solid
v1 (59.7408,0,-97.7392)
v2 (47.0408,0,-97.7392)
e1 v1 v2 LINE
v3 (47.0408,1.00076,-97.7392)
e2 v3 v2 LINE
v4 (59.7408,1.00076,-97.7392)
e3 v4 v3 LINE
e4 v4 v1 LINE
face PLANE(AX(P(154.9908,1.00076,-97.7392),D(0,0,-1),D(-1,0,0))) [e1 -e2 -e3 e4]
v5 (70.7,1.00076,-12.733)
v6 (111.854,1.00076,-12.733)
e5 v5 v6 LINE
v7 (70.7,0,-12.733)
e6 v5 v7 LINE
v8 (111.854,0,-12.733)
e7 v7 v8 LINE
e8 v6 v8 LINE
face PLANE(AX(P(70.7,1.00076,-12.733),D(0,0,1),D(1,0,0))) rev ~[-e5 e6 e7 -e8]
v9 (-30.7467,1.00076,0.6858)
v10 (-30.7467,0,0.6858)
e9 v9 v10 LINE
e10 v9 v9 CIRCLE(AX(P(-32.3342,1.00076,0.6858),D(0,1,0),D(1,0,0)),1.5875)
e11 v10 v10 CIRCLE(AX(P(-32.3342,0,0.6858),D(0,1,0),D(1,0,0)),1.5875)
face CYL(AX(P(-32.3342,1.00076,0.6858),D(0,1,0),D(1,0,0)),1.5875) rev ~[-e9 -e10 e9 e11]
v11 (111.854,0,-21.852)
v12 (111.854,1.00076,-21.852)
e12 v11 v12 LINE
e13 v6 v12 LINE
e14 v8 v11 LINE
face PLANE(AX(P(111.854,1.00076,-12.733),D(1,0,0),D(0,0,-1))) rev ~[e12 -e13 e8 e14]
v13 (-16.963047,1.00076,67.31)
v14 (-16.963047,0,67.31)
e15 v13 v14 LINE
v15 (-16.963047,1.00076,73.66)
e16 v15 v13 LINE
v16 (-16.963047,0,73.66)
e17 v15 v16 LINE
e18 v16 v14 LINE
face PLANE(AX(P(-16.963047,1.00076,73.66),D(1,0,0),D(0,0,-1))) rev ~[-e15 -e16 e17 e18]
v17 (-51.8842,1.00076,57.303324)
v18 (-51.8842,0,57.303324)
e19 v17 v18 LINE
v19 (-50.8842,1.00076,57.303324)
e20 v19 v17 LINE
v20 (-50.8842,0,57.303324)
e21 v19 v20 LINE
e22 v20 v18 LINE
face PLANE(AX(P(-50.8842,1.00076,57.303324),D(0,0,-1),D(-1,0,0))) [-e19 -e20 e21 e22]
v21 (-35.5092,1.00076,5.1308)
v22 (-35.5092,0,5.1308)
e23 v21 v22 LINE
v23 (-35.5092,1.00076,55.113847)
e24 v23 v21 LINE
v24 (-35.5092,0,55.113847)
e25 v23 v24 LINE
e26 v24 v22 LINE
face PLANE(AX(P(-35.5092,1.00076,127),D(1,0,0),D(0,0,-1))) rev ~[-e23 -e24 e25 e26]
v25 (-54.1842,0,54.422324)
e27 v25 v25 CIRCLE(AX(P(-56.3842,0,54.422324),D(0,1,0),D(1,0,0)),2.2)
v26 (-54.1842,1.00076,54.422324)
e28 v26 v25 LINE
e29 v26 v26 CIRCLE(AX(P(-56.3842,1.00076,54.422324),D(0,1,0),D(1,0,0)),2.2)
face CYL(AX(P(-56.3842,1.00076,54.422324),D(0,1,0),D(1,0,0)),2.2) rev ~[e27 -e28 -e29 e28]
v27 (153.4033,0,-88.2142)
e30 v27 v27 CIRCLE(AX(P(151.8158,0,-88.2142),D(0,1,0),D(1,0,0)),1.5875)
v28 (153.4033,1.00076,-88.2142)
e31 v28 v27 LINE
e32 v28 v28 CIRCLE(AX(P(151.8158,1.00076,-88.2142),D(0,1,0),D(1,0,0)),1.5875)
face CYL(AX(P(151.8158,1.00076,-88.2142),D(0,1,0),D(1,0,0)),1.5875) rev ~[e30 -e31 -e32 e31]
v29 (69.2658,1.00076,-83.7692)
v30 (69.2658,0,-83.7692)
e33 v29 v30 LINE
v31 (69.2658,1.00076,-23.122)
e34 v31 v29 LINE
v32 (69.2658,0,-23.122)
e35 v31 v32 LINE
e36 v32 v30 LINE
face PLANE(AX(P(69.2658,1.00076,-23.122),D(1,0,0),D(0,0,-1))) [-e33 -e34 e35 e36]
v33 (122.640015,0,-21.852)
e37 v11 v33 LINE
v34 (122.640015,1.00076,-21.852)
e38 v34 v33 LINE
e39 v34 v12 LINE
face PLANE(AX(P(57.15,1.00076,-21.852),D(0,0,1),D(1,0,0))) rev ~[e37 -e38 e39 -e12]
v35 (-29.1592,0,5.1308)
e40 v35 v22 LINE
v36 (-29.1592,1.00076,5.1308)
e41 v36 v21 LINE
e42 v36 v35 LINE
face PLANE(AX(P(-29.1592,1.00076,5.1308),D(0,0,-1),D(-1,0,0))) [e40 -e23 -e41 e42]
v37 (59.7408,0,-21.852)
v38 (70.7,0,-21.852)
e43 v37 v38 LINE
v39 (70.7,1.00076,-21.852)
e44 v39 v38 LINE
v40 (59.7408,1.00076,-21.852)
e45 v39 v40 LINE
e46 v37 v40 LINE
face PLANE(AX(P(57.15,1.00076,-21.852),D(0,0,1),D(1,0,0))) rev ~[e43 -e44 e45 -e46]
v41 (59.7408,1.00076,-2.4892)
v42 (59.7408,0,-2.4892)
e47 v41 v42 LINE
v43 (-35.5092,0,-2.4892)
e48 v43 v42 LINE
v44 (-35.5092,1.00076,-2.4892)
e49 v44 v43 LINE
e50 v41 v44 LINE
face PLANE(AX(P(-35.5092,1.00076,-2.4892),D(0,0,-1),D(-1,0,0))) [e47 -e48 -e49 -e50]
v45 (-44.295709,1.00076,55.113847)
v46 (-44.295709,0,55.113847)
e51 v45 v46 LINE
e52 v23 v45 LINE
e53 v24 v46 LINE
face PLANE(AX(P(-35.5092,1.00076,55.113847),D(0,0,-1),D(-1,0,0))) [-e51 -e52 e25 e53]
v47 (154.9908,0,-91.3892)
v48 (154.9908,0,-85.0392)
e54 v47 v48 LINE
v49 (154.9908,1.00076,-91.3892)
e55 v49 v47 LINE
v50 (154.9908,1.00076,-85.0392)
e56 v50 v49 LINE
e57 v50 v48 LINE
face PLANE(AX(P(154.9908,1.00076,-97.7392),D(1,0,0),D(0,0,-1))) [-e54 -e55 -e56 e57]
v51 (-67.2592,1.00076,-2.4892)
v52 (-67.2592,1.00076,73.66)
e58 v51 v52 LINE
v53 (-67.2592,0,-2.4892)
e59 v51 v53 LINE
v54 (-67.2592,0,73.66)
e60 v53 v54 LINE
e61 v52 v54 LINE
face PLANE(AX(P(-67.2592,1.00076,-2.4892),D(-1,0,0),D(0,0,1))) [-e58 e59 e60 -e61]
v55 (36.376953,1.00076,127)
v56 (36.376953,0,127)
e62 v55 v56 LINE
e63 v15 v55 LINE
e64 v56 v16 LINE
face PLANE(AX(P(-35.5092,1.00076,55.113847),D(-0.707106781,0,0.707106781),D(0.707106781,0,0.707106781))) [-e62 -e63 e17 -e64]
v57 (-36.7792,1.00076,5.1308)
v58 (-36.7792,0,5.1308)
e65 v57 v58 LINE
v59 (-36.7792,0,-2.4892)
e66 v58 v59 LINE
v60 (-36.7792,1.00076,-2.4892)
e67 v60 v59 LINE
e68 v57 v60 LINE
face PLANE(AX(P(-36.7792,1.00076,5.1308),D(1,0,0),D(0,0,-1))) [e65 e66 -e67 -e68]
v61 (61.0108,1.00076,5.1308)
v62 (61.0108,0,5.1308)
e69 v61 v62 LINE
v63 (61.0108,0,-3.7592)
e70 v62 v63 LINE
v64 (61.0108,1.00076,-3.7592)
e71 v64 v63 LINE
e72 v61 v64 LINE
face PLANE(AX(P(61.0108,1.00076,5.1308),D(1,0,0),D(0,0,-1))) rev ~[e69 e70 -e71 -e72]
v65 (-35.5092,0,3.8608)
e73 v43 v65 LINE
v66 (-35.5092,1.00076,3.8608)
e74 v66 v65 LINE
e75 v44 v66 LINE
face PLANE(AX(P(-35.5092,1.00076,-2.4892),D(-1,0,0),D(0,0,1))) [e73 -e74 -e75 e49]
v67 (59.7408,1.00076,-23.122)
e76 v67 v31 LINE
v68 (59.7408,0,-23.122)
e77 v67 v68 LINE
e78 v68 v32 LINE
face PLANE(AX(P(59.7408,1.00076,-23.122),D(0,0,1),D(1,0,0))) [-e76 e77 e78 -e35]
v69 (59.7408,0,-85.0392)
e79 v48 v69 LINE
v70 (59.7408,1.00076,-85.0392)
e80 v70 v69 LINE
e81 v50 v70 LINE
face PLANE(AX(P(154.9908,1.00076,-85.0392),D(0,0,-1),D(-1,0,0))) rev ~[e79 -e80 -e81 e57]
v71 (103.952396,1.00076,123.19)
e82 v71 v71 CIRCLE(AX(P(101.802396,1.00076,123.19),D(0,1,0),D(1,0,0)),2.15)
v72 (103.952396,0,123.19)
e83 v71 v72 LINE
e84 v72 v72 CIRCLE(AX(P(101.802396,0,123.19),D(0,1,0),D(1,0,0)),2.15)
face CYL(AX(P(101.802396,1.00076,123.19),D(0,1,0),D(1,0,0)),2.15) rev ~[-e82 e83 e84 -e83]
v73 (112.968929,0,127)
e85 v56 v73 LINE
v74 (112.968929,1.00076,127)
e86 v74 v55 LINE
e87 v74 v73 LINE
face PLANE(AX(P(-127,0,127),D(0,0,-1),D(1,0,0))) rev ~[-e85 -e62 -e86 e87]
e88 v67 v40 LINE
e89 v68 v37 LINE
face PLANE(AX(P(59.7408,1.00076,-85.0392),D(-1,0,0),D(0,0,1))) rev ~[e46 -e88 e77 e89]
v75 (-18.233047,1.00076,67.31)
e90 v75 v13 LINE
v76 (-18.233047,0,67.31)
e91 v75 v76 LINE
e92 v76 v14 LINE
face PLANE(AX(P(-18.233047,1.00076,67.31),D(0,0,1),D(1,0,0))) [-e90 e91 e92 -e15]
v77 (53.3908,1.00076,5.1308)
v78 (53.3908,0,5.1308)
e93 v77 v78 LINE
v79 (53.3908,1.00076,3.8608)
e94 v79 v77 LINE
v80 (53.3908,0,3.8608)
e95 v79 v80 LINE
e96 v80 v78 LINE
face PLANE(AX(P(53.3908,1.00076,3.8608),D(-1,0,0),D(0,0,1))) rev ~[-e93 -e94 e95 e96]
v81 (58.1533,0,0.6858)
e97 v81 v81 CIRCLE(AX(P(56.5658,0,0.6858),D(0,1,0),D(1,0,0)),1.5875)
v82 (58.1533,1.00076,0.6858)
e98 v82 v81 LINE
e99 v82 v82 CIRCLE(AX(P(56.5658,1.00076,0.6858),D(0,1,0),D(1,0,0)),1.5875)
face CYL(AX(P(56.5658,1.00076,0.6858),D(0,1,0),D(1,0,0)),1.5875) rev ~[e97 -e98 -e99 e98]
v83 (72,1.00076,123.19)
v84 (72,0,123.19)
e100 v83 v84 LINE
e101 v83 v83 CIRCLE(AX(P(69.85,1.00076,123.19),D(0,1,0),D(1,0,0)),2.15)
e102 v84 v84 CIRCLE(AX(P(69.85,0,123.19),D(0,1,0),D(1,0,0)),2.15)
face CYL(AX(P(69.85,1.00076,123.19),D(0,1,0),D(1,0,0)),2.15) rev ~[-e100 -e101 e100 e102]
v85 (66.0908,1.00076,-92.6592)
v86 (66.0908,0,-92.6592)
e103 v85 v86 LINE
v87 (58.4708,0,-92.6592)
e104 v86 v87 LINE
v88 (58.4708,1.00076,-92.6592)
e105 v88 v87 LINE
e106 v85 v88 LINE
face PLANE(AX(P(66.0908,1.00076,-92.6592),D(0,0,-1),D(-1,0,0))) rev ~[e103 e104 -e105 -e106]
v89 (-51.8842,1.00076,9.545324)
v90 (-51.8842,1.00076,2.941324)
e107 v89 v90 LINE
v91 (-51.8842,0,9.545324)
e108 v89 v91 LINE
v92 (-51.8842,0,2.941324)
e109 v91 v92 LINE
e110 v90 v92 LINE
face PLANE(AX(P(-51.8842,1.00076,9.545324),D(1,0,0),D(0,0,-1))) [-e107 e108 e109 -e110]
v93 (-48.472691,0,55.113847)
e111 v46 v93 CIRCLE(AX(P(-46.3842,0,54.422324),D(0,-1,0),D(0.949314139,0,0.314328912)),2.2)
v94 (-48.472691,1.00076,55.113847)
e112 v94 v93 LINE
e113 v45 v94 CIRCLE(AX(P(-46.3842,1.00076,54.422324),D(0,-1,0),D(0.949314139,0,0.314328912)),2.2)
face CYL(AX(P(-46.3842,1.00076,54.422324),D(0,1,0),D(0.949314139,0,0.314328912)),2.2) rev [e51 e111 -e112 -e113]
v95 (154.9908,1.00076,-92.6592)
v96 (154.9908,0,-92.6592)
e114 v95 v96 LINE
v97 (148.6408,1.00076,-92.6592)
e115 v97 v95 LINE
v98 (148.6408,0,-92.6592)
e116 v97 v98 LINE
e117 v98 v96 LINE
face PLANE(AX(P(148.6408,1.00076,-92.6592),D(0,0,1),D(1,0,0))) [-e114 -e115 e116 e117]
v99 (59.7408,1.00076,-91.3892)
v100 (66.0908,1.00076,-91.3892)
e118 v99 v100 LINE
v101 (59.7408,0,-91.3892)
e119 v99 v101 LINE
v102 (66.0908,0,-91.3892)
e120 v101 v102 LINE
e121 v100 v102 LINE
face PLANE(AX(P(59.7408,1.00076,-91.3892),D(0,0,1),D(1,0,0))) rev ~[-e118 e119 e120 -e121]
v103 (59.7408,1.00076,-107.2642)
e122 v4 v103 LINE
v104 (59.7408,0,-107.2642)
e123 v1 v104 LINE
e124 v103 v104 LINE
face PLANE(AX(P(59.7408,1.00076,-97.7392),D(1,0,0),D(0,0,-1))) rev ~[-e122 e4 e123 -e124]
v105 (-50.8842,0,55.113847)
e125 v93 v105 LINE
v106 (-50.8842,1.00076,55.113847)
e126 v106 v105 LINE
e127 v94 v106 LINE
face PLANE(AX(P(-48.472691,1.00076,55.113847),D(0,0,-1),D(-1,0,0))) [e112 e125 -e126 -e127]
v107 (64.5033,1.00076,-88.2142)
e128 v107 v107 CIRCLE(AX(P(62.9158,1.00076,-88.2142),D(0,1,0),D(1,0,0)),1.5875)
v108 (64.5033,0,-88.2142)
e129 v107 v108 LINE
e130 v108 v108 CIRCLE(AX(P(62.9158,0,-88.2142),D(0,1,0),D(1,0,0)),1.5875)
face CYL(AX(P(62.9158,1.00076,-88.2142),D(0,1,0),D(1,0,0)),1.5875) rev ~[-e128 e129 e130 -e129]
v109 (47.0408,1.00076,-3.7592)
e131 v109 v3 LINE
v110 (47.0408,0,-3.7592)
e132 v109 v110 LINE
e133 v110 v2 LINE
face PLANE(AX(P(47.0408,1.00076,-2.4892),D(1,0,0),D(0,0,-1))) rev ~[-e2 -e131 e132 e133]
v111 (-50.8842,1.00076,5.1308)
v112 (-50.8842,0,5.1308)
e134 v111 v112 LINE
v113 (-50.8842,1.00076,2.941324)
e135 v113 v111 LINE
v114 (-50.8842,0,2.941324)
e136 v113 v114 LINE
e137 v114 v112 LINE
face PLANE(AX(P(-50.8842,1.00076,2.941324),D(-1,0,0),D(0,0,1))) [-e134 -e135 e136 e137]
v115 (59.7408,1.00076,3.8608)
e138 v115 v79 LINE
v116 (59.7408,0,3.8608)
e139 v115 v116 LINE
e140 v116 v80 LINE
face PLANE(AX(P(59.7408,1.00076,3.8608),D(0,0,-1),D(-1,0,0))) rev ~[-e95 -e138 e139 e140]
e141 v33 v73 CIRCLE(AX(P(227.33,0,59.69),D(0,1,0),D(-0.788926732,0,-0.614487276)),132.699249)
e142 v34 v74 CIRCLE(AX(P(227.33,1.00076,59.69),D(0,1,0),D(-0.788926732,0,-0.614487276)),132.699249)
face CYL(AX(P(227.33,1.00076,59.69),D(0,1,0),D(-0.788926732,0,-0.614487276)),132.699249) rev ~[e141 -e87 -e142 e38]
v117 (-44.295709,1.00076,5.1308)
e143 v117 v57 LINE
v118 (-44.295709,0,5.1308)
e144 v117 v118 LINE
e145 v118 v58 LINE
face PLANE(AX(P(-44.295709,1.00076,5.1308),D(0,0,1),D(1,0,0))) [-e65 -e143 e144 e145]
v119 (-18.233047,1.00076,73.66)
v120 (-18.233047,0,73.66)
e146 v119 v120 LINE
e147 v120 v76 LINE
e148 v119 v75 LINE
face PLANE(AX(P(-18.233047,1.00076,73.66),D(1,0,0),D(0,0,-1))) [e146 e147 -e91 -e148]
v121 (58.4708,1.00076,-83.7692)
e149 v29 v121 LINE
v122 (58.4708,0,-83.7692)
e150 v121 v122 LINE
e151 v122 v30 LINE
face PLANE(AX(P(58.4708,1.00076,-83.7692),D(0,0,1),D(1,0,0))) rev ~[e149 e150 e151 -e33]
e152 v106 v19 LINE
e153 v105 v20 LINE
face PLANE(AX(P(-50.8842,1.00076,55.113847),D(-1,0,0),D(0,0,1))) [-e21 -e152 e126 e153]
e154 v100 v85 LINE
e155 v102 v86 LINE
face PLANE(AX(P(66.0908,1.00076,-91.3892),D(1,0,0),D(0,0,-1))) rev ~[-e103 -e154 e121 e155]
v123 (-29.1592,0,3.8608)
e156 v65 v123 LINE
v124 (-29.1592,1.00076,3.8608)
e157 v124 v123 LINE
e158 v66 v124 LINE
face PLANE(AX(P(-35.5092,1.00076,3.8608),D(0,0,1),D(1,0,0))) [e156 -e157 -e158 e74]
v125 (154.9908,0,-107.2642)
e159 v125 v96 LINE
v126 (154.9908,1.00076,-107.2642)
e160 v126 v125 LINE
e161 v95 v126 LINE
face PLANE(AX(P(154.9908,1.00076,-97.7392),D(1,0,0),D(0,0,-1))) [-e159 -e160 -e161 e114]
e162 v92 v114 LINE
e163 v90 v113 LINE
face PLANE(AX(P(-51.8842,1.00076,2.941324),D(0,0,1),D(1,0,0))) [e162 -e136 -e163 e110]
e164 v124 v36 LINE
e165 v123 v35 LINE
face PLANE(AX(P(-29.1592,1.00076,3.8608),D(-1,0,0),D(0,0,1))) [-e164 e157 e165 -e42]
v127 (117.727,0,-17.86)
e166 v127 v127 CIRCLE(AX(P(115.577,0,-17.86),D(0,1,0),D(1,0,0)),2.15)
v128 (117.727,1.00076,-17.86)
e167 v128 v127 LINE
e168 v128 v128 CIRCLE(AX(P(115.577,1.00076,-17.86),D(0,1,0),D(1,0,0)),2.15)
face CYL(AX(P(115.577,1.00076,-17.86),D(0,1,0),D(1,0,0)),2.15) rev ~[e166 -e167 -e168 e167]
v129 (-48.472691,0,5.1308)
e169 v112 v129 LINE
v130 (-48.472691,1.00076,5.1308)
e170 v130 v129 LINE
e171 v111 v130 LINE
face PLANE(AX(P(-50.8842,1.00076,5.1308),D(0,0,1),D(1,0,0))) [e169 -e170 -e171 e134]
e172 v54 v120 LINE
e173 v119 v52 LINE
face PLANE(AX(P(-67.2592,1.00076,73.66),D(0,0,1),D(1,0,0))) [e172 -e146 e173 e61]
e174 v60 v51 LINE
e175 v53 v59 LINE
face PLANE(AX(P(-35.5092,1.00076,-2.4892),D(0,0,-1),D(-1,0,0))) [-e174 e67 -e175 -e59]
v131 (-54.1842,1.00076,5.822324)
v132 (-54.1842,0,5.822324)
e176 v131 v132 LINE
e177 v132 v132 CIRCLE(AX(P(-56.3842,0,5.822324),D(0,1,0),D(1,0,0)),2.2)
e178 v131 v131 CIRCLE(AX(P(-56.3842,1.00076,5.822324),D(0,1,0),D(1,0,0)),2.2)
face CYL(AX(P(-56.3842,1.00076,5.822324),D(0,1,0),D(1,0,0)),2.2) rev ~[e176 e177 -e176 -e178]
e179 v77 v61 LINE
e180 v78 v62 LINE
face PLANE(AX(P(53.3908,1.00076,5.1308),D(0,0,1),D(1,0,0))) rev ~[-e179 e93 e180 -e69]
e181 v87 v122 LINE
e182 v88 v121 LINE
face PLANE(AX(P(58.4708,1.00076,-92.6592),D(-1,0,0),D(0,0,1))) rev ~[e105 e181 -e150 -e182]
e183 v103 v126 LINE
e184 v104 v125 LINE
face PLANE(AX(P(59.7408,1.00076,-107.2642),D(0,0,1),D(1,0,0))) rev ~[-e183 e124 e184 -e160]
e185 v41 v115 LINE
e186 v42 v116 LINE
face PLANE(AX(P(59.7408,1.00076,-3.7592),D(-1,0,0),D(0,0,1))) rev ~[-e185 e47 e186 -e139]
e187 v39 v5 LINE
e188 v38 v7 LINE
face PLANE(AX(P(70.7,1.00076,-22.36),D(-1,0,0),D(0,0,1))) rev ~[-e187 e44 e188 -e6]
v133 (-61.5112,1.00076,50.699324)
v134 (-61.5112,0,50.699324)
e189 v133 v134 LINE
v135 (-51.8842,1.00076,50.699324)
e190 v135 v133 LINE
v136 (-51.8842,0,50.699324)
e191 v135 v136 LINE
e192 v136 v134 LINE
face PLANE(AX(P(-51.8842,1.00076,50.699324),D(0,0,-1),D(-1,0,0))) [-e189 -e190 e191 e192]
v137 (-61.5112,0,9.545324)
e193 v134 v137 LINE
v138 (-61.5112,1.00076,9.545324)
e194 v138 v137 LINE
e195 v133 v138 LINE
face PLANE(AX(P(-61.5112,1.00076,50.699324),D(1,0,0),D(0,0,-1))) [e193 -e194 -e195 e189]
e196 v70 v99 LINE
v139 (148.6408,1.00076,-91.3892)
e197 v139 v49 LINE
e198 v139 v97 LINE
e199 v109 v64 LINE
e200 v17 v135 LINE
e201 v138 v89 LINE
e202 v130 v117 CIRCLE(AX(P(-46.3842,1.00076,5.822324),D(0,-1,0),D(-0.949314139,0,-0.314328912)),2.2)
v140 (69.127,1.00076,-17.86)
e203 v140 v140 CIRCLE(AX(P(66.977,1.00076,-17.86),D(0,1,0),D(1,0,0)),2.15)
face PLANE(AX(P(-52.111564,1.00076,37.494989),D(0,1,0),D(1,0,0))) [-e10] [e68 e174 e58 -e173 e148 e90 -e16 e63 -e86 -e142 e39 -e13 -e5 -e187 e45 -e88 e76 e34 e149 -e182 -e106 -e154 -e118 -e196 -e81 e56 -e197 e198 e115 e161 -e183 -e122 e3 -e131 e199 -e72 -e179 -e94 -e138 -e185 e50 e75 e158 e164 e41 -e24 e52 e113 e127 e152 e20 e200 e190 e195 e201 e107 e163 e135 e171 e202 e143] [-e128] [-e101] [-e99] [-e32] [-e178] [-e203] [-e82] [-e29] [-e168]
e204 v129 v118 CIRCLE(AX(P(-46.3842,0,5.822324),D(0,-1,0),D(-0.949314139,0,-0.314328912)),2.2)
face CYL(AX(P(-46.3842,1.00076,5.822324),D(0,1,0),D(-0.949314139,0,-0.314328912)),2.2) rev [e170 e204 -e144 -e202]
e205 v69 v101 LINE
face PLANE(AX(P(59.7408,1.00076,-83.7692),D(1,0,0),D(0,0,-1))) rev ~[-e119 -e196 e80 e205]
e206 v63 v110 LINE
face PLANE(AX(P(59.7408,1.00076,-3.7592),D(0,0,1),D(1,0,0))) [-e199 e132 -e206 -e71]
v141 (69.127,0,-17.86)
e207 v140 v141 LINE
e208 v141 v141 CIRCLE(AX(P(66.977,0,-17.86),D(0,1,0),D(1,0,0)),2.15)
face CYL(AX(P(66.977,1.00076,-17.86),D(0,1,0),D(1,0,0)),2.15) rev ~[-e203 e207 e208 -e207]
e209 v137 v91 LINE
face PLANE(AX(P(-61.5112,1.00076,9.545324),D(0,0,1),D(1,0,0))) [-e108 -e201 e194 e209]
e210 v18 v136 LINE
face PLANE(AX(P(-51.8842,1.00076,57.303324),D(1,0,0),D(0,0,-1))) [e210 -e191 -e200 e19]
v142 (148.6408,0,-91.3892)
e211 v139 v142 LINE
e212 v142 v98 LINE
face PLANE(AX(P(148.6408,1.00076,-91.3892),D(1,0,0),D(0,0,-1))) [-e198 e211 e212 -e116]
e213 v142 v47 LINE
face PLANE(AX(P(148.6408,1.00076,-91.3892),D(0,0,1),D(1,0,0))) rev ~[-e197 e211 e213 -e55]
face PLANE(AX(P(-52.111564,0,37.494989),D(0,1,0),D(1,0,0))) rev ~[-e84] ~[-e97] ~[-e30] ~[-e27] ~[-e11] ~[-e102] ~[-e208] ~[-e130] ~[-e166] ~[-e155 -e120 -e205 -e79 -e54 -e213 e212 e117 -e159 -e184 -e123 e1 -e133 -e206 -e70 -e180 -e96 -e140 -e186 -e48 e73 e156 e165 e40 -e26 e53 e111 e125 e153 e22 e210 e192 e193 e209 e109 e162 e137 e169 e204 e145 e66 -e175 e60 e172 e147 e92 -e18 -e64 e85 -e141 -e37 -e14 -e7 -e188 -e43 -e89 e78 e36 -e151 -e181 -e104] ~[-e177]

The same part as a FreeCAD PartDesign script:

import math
import FreeCAD as App
import Part
import Sketcher

V = App.Vector
Q = App.Units.Quantity

doc = App.newDocument("Part")
body = doc.addObject("PartDesign::Body", "Body")

# Sketch on XZ plane
sketch1 = doc.addObject("Sketcher::SketchObject", "Sketch")
body.addObject(sketch1)
sketch1.AttachmentSupport = (doc.XZ_Plane, [""])
sketch1.MapMode = "FlatFace"
sketch1.addGeometry([
    Part.LineSegment(V(-127, -127, 0), V(-127, 127, 0)),
    Part.LineSegment(V(-127, 127, 0), V(127, 127, 0)),
    Part.LineSegment(V(127, 127, 0), V(127, -127, 0)),
    Part.LineSegment(V(127, -127, 0), V(-127, -127, 0)),
], False)
sketch1.addConstraint([
    Sketcher.Constraint("Coincident", 0, 2, 1, 1),
    Sketcher.Constraint("Coincident", 1, 2, 2, 1),
    Sketcher.Constraint("Coincident", 2, 2, 3, 1),
    Sketcher.Constraint("Coincident", 3, 2, 0, 1),
    Sketcher.Constraint("Vertical", 0),
    Sketcher.Constraint("Horizontal", 1),
    Sketcher.Constraint("Vertical", 2),
    Sketcher.Constraint("Horizontal", 3),
    Sketcher.Constraint("Symmetric", 0, 2, 2, 2, -1, 1),
    Sketcher.Constraint("Equal", 3, 0),
    Sketcher.Constraint("DistanceX", 1, 1, 1, 2, Q("10 in")),
])
pad1 = doc.addObject("PartDesign::Pad", "Pad")
body.addObject(pad1)
pad1.Profile = sketch1
pad1.Length = Q("0.0394 in")
pad1.Reversed = True

# Sketch on XZ plane
sketch2 = doc.addObject("Sketcher::SketchObject", "Sketch001")
body.addObject(sketch2)
sketch2.AttachmentSupport = (doc.XZ_Plane, [""])
sketch2.MapMode = "FlatFace"
sketch2.AttachmentOffset = App.Placement(V(0, 0, -0.0394 * 25.4), App.Rotation())
sketch2.addGeometry([
    Part.LineSegment(V(57.15, -47.252, 0), V(57.15, -21.852, 0)),
    Part.LineSegment(V(57.15, -21.852, 0), V(127, -21.852, 0)),
    Part.LineSegment(V(127, -21.852, 0), V(127, -47.252, 0)),
    Part.LineSegment(V(127, -47.252, 0), V(57.15, -47.252, 0)),
], False)
sketch2.addConstraint([
    Sketcher.Constraint("Coincident", 0, 2, 1, 1),
    Sketcher.Constraint("Coincident", 1, 2, 2, 1),
    Sketcher.Constraint("Coincident", 2, 2, 3, 1),
    Sketcher.Constraint("Coincident", 3, 2, 0, 1),
    Sketcher.Constraint("Vertical", 0),
    Sketcher.Constraint("Horizontal", 1),
    Sketcher.Constraint("Vertical", 2),
    Sketcher.Constraint("Horizontal", 3),
    Sketcher.Constraint("DistanceY", 0, 1, 0, 2, Q("1 in")),
    Sketcher.Constraint("DistanceX", -1, 1, 1, 2, Q("5 in")),
    Sketcher.Constraint("DistanceX", 1, 1, 1, 2, Q("2.75 in")),
    Sketcher.Constraint("DistanceY", 0, 2, -1, 1, Q("21.852 mm")),
])
pocket1 = doc.addObject("PartDesign::Pocket", "Pocket")
body.addObject(pocket1)
pocket1.Profile = sketch2
pocket1.Type = "ThroughAll"
pocket1.Midplane = True

# Sketch on XZ plane
sketch3 = doc.addObject("Sketcher::SketchObject", "Sketch002")
body.addObject(sketch3)
sketch3.AttachmentSupport = (doc.XZ_Plane, [""])
sketch3.MapMode = "FlatFace"
sketch3.AttachmentOffset = App.Placement(V(0, 0, -0.0394 * 25.4), App.Rotation())
sketch3.addGeometry([
    Part.LineSegment(V(127, 127, 0), V(127, -21.852, 0)),
    Part.LineSegment(V(127, -21.852, 0), V(122.640015, -21.852, 0)),
    Part.ArcOfCircle(Part.Circle(V(227.33, 59.69, 0), V(0, 0, 1), 132.699249), math.radians(149.520022), math.radians(217.914674)),
    Part.LineSegment(V(112.968929, 127, 0), V(127, 127, 0)),
], False)
sketch3.addConstraint([
    Sketcher.Constraint("Coincident", 0, 2, 1, 1),
    Sketcher.Constraint("Coincident", 1, 2, 2, 2),
    Sketcher.Constraint("Coincident", 2, 1, 3, 1),
    Sketcher.Constraint("Coincident", 3, 2, 0, 1),
    Sketcher.Constraint("Vertical", 0),
    Sketcher.Constraint("Horizontal", 1),
    Sketcher.Constraint("Horizontal", 3),
    Sketcher.Constraint("DistanceX", -1, 1, 0, 2, Q("5 in")),
    Sketcher.Constraint("DistanceY", -1, 1, 2, 1, Q("5 in")),
    Sketcher.Constraint("DistanceX", -1, 1, 2, 3, Q("8.95 in")),
    Sketcher.Constraint("DistanceY", -1, 1, 2, 3, Q("2.35 in")),
    Sketcher.Constraint("Radius", 2, Q("132.699249 mm")),
    Sketcher.Constraint("DistanceY", 0, 2, 0, 1, Q("148.852 mm")),
])
pocket2 = doc.addObject("PartDesign::Pocket", "Pocket001")
body.addObject(pocket2)
pocket2.Profile = sketch3
pocket2.Type = "ThroughAll"
pocket2.Midplane = True

# Sketch on XZ plane
sketch4 = doc.addObject("Sketcher::SketchObject", "Sketch003")
body.addObject(sketch4)
sketch4.AttachmentSupport = (doc.XZ_Plane, [""])
sketch4.MapMode = "FlatFace"
sketch4.AttachmentOffset = App.Placement(V(0, 0, -0.0394 * 25.4), App.Rotation())
sketch4.addGeometry([
    Part.Circle(V(69.85, 123.19, 0), V(0, 0, 1), 2.15),
    Part.Circle(V(101.802396, 123.19, 0), V(0, 0, 1), 2.15),
    Part.Circle(V(66.977, -17.86, 0), V(0, 0, 1), 2.15),
    Part.Circle(V(115.577, -17.86, 0), V(0, 0, 1), 2.15),
], False)
sketch4.addConstraint([
    Sketcher.Constraint("Equal", 0, 1),
    Sketcher.Constraint("Equal", 1, 2),
    Sketcher.Constraint("Equal", 2, 3),
    Sketcher.Constraint("Horizontal", 0, 3, 1, 3),
    Sketcher.Constraint("Horizontal", 2, 3, 3, 3),
    Sketcher.Constraint("Diameter", 0, Q("4.3 mm")),
    Sketcher.Constraint("DistanceX", -1, 1, 0, 3, Q("2.75 in")),
    Sketcher.Constraint("DistanceY", -1, 1, 0, 3, Q("4.85 in")),
    Sketcher.Constraint("DistanceX", -1, 1, 2, 3, Q("66.977 mm")),
    Sketcher.Constraint("DistanceY", 2, 3, -1, 1, Q("17.86 mm")),
    Sketcher.Constraint("DistanceX", -1, 1, 3, 3, Q("115.577 mm")),
    Sketcher.Constraint("DistanceX", -1, 1, 1, 3, Q("101.802396 mm")),
])
pocket3 = doc.addObject("PartDesign::Pocket", "Pocket002")
body.addObject(pocket3)
pocket3.Profile = sketch4
pocket3.Type = "ThroughAll"
pocket3.Midplane = True

# Sketch on XZ plane
sketch5 = doc.addObject("Sketcher::SketchObject", "Sketch004")
body.addObject(sketch5)
sketch5.AttachmentSupport = (doc.XZ_Plane, [""])
sketch5.MapMode = "FlatFace"
sketch5.AttachmentOffset = App.Placement(V(0, 0, -0.0394 * 25.4), App.Rotation())
sketch5.addGeometry([
    Part.Circle(V(66.977, -27.86, 0), V(0, 0, 1), 2.1),  # 0
    Part.Circle(V(66.977, -17.86, 0), V(0, 0, 1), 2.1),  # 1
    Part.Circle(V(115.577, -27.86, 0), V(0, 0, 1), 2.1),  # 2
    Part.Circle(V(115.577, -17.86, 0), V(0, 0, 1), 2.1),  # 3
    Part.LineSegment(V(70.7, -22.36, 0), V(70.7, -12.733, 0)),  # 4
    Part.LineSegment(V(70.7, -12.733, 0), V(111.854, -12.733, 0)),  # 5
    Part.LineSegment(V(111.854, -12.733, 0), V(111.854, -22.36, 0)),  # 6
    Part.LineSegment(V(111.854, -22.36, 0), V(118.458, -22.36, 0)),  # 7
    Part.LineSegment(V(118.458, -22.36, 0), V(118.458, -23.36, 0)),  # 8
    Part.LineSegment(V(118.458, -23.36, 0), V(111.854, -23.36, 0)),  # 9
    Part.LineSegment(V(111.854, -23.36, 0), V(111.854, -32.987, 0)),  # 10
    Part.LineSegment(V(111.854, -32.987, 0), V(70.7, -32.987, 0)),  # 11
    Part.LineSegment(V(70.7, -32.987, 0), V(70.7, -23.36, 0)),  # 12
    Part.LineSegment(V(70.7, -23.36, 0), V(64.096, -23.36, 0)),  # 13
    Part.LineSegment(V(64.096, -23.36, 0), V(64.096, -22.36, 0)),  # 14
    Part.LineSegment(V(64.096, -22.36, 0), V(70.7, -22.36, 0)),  # 15
], False)
sketch5.addConstraint([
    Sketcher.Constraint("Coincident", 4, 2, 5, 1),
    Sketcher.Constraint("Coincident", 5, 2, 6, 1),
    Sketcher.Constraint("Coincident", 6, 2, 7, 1),
    Sketcher.Constraint("Coincident", 7, 2, 8, 1),
    Sketcher.Constraint("Coincident", 8, 2, 9, 1),
    Sketcher.Constraint("Coincident", 9, 2, 10, 1),
    Sketcher.Constraint("Coincident", 10, 2, 11, 1),
    Sketcher.Constraint("Coincident", 11, 2, 12, 1),
    Sketcher.Constraint("Coincident", 12, 2, 13, 1),
    Sketcher.Constraint("Coincident", 13, 2, 14, 1),
    Sketcher.Constraint("Coincident", 14, 2, 15, 1),
    Sketcher.Constraint("Coincident", 15, 2, 4, 1),
    Sketcher.Constraint("Vertical", 4),
    Sketcher.Constraint("Horizontal", 5),
    Sketcher.Constraint("Vertical", 6),
    Sketcher.Constraint("Horizontal", 7),
    Sketcher.Constraint("Vertical", 8),
    Sketcher.Constraint("Horizontal", 9),
    Sketcher.Constraint("Vertical", 10),
    Sketcher.Constraint("Horizontal", 11),
    Sketcher.Constraint("Vertical", 12),
    Sketcher.Constraint("Horizontal", 13),
    Sketcher.Constraint("Vertical", 14),
    Sketcher.Constraint("Horizontal", 15),
    Sketcher.Constraint("Equal", 0, 1),
    Sketcher.Constraint("Equal", 1, 2),
    Sketcher.Constraint("Equal", 2, 3),
    Sketcher.Constraint("Horizontal", 0, 3, 2, 3),
    Sketcher.Constraint("Horizontal", 1, 3, 3, 3),
    Sketcher.Constraint("Horizontal", 9, 2, 12, 2),
    Sketcher.Constraint("Horizontal", 7, 2, 14, 2),
    Sketcher.Constraint("Vertical", 0, 3, 1, 3),
    Sketcher.Constraint("Vertical", 2, 3, 3, 3),
    Sketcher.Constraint("Vertical", 6, 2, 9, 2),
    Sketcher.Constraint("Vertical", 4, 2, 11, 2),
    Sketcher.Constraint("Equal", 9, 13),
    Sketcher.Constraint("Equal", 6, 10),
    Sketcher.Constraint("DistanceX", 7, 1, 7, 2, Q("0.26 in")),
    Sketcher.Constraint("Diameter", 0, Q("4.2 mm")),
    Sketcher.Constraint("DistanceX", 5, 1, 5, 2, Q("41.154 mm")),
    Sketcher.Constraint("DistanceY", 4, 1, 4, 2, Q("9.627 mm")),
    Sketcher.Constraint("DistanceY", 8, 2, 8, 1, Q("1 mm")),
    Sketcher.Constraint("DistanceX", -1, 1, 0, 3, Q("66.977 mm")),
    Sketcher.Constraint("DistanceY", 0, 3, -1, 1, Q("27.86 mm")),
    Sketcher.Constraint("DistanceY", 1, 3, -1, 1, Q("17.86 mm")),
    Sketcher.Constraint("DistanceX", -1, 1, 2, 3, Q("115.577 mm")),
    Sketcher.Constraint("DistanceX", -1, 1, 4, 2, Q("70.7 mm")),
    Sketcher.Constraint("DistanceY", 4, 2, -1, 1, Q("12.733 mm")),
])
pocket4 = doc.addObject("PartDesign::Pocket", "Pocket003")
body.addObject(pocket4)
pocket4.Profile = sketch5
pocket4.Type = "ThroughAll"
pocket4.Midplane = True

# Sketch on XZ plane
sketch6 = doc.addObject("Sketcher::SketchObject", "Sketch005")
body.addObject(sketch6)
sketch6.AttachmentSupport = (doc.XZ_Plane, [""])
sketch6.MapMode = "FlatFace"
sketch6.AttachmentOffset = App.Placement(V(0, 0, -0.0394 * 25.4), App.Rotation())
sketch6.addGeometry([
    Part.LineSegment(V(-35.5092, -97.7392, 0), V(-35.5092, -2.4892, 0)),
    Part.LineSegment(V(-35.5092, -2.4892, 0), V(59.7408, -2.4892, 0)),
    Part.LineSegment(V(59.7408, -2.4892, 0), V(59.7408, -97.7392, 0)),
    Part.LineSegment(V(59.7408, -97.7392, 0), V(-35.5092, -97.7392, 0)),
], False)
sketch6.addConstraint([
    Sketcher.Constraint("Coincident", 0, 2, 1, 1),
    Sketcher.Constraint("Coincident", 1, 2, 2, 1),
    Sketcher.Constraint("Coincident", 2, 2, 3, 1),
    Sketcher.Constraint("Coincident", 3, 2, 0, 1),
    Sketcher.Constraint("Vertical", 0),
    Sketcher.Constraint("Horizontal", 1),
    Sketcher.Constraint("Vertical", 2),
    Sketcher.Constraint("Horizontal", 3),
    Sketcher.Constraint("Equal", 3, 0),
    Sketcher.Constraint("DistanceX", 1, 1, 1, 2, Q("3.75 in")),
    Sketcher.Constraint("DistanceX", 0, 2, -1, 1, Q("1.398 in")),
    Sketcher.Constraint("DistanceY", 0, 2, -1, 1, Q("0.098 in")),
])
pocket5 = doc.addObject("PartDesign::Pocket", "Pocket004")
body.addObject(pocket5)
pocket5.Profile = sketch6
pocket5.Type = "ThroughAll"
pocket5.Midplane = True

# Sketch on XZ plane
sketch7 = doc.addObject("Sketcher::SketchObject", "Sketch006")
body.addObject(sketch7)
sketch7.AttachmentSupport = (doc.XZ_Plane, [""])
sketch7.MapMode = "FlatFace"
sketch7.AttachmentOffset = App.Placement(V(0, 0, -0.0394 * 25.4), App.Rotation())
sketch7.addGeometry([
    Part.LineSegment(V(127, -47.252, 0), V(127, -127, 0)),  # 0
    Part.LineSegment(V(127, -127, 0), V(-127, -127, 0)),  # 1
    Part.LineSegment(V(-127, -127, 0), V(-127, 127, 0)),  # 2
    Part.LineSegment(V(-127, 127, 0), V(-35.5092, 127, 0)),  # 3
    Part.LineSegment(V(-35.5092, 127, 0), V(-35.5092, -47.252, 0)),  # 4
    Part.LineSegment(V(-35.5092, -47.252, 0), V(127, -47.252, 0)),  # 5
], False)
sketch7.addConstraint([
    Sketcher.Constraint("Coincident", 0, 2, 1, 1),
    Sketcher.Constraint("Coincident", 1, 2, 2, 1),
    Sketcher.Constraint("Coincident", 2, 2, 3, 1),
    Sketcher.Constraint("Coincident", 3, 2, 4, 1),
    Sketcher.Constraint("Coincident", 4, 2, 5, 1),
    Sketcher.Constraint("Coincident", 5, 2, 0, 1),
    Sketcher.Constraint("Vertical", 0),
    Sketcher.Constraint("Horizontal", 1),
    Sketcher.Constraint("Vertical", 2),
    Sketcher.Constraint("Horizontal", 3),
    Sketcher.Constraint("Vertical", 4),
    Sketcher.Constraint("Horizontal", 5),
    Sketcher.Constraint("Symmetric", 0, 2, 2, 2, -1, 1),
    Sketcher.Constraint("Equal", 1, 2),
    Sketcher.Constraint("DistanceX", 1, 2, 1, 1, Q("10 in")),
    Sketcher.Constraint("DistanceX", 3, 1, 3, 2, Q("3.602 in")),
    Sketcher.Constraint("DistanceY", 0, 2, 0, 1, Q("79.748 mm")),
])
pocket6 = doc.addObject("PartDesign::Pocket", "Pocket005")
body.addObject(pocket6)
pocket6.Profile = sketch7
pocket6.Type = "ThroughAll"
pocket6.Midplane = True

# Sketch on XZ plane
sketch8 = doc.addObject("Sketcher::SketchObject", "Sketch007")
body.addObject(sketch8)
sketch8.AttachmentSupport = (doc.XZ_Plane, [""])
sketch8.MapMode = "FlatFace"
sketch8.AttachmentOffset = App.Placement(V(0, 0, -0.0394 * 25.4), App.Rotation())
sketch8.addGeometry([
    Part.LineSegment(V(47.0408, -2.4892, 0), V(59.7408, -2.4892, 0)),  # 0
    Part.LineSegment(V(59.7408, -2.4892, 0), V(59.7408, -85.0392, 0)),  # 1
    Part.LineSegment(V(59.7408, -85.0392, 0), V(154.9908, -85.0392, 0)),  # 2
    Part.LineSegment(V(154.9908, -85.0392, 0), V(154.9908, -97.7392, 0)),  # 3
    Part.LineSegment(V(154.9908, -97.7392, 0), V(47.0408, -97.7392, 0)),  # 4
    Part.LineSegment(V(47.0408, -97.7392, 0), V(47.0408, -2.4892, 0)),  # 5
], False)
sketch8.addConstraint([
    Sketcher.Constraint("Coincident", 0, 2, 1, 1),
    Sketcher.Constraint("Coincident", 1, 2, 2, 1),
    Sketcher.Constraint("Coincident", 2, 2, 3, 1),
    Sketcher.Constraint("Coincident", 3, 2, 4, 1),
    Sketcher.Constraint("Coincident", 4, 2, 5, 1),
    Sketcher.Constraint("Coincident", 5, 2, 0, 1),
    Sketcher.Constraint("Horizontal", 0),
    Sketcher.Constraint("Vertical", 1),
    Sketcher.Constraint("Horizontal", 2),
    Sketcher.Constraint("Vertical", 3),
    Sketcher.Constraint("Horizontal", 4),
    Sketcher.Constraint("Vertical", 5),
    Sketcher.Constraint("Equal", 0, 3),
    Sketcher.Constraint("Equal", 2, 5),
    Sketcher.Constraint("DistanceX", 0, 1, 0, 2, Q("0.5 in")),
    Sketcher.Constraint("DistanceX", 2, 1, 2, 2, Q("3.75 in")),
    Sketcher.Constraint("DistanceX", -1, 1, 0, 2, Q("2.352 in")),
    Sketcher.Constraint("DistanceY", 0, 2, -1, 1, Q("0.098 in")),
])
pad2 = doc.addObject("PartDesign::Pad", "Pad001")
body.addObject(pad2)
pad2.Profile = sketch8
pad2.Length = Q("0.0394 in")

# Sketch on XZ plane
sketch9 = doc.addObject("Sketcher::SketchObject", "Sketch008")
body.addObject(sketch9)
sketch9.AttachmentSupport = (doc.XZ_Plane, [""])
sketch9.MapMode = "FlatFace"
sketch9.AttachmentOffset = App.Placement(V(0, 0, -0.0394 * 25.4), App.Rotation())
sketch9.addGeometry([
    Part.LineSegment(V(47.0408, -3.7592, 0), V(47.0408, -2.4892, 0)),
    Part.LineSegment(V(47.0408, -2.4892, 0), V(59.7408, -2.4892, 0)),
    Part.LineSegment(V(59.7408, -2.4892, 0), V(59.7408, -3.7592, 0)),
    Part.LineSegment(V(59.7408, -3.7592, 0), V(47.0408, -3.7592, 0)),
], False)
sketch9.addConstraint([
    Sketcher.Constraint("Coincident", 0, 2, 1, 1),
    Sketcher.Constraint("Coincident", 1, 2, 2, 1),
    Sketcher.Constraint("Coincident", 2, 2, 3, 1),
    Sketcher.Constraint("Coincident", 3, 2, 0, 1),
    Sketcher.Constraint("Vertical", 0),
    Sketcher.Constraint("Horizontal", 1),
    Sketcher.Constraint("Vertical", 2),
    Sketcher.Constraint("Horizontal", 3),
    Sketcher.Constraint("DistanceX", 1, 1, 1, 2, Q("0.5 in")),
    Sketcher.Constraint("DistanceY", 0, 1, 0, 2, Q("0.05 in")),
    Sketcher.Constraint("DistanceX", -1, 1, 0, 2, Q("1.852 in")),
    Sketcher.Constraint("DistanceY", 0, 2, -1, 1, Q("0.098 in")),
])
pocket7 = doc.addObject("PartDesign::Pocket", "Pocket006")
body.addObject(pocket7)
pocket7.Profile = sketch9
pocket7.Type = "ThroughAll"
pocket7.Midplane = True

# Sketch on XZ plane
sketch10 = doc.addObject("Sketcher::SketchObject", "Sketch009")
body.addObject(sketch10)
sketch10.AttachmentSupport = (doc.XZ_Plane, [""])
sketch10.MapMode = "FlatFace"
sketch10.AttachmentOffset = App.Placement(V(0, 0, -0.0394 * 25.4), App.Rotation())
sketch10.addGeometry([
    Part.LineSegment(V(36.376953, 127, 0), V(-35.5092, 55.113847, 0)),
    Part.LineSegment(V(-35.5092, 55.113847, 0), V(-35.5092, 127, 0)),
    Part.LineSegment(V(-35.5092, 127, 0), V(36.376953, 127, 0)),
], False)
sketch10.addConstraint([
    Sketcher.Constraint("Coincident", 0, 2, 1, 1),
    Sketcher.Constraint("Coincident", 1, 2, 2, 1),
    Sketcher.Constraint("Coincident", 2, 2, 0, 1),
    Sketcher.Constraint("Vertical", 1),
    Sketcher.Constraint("Horizontal", 2),
    Sketcher.Constraint("Equal", 2, 1),
    Sketcher.Constraint("DistanceY", -1, 1, 1, 2, Q("5 in")),
    Sketcher.Constraint("DistanceX", 0, 2, -1, 1, Q("1.398 in")),
    Sketcher.Constraint("DistanceX", 2, 1, 2, 2, Q("71.886153 mm")),
])
pocket8 = doc.addObject("PartDesign::Pocket", "Pocket007")
body.addObject(pocket8)
pocket8.Profile = sketch10
pocket8.Type = "ThroughAll"
pocket8.Midplane = True

# Sketch on XZ plane
sketch11 = doc.addObject("Sketcher::SketchObject", "Sketch010")
body.addObject(sketch11)
sketch11.AttachmentSupport = (doc.XZ_Plane, [""])
sketch11.MapMode = "FlatFace"
sketch11.AttachmentOffset = App.Placement(V(0, 0, -0.0394 * 25.4), App.Rotation())
sketch11.addGeometry([
    Part.LineSegment(V(59.7408, -83.7692, 0), V(59.7408, -23.122, 0)),  # 0
    Part.LineSegment(V(59.7408, -23.122, 0), V(69.2658, -23.122, 0)),  # 1
    Part.LineSegment(V(69.2658, -23.122, 0), V(69.2658, -83.7692, 0)),  # 2
    Part.LineSegment(V(69.2658, -83.7692, 0), V(59.7408, -83.7692, 0)),  # 3
    Part.LineSegment(V(59.7408, -107.2642, 0), V(59.7408, -97.7392, 0)),  # 4
    Part.LineSegment(V(59.7408, -97.7392, 0), V(154.9908, -97.7392, 0)),  # 5
    Part.LineSegment(V(154.9908, -97.7392, 0), V(154.9908, -107.2642, 0)),  # 6
    Part.LineSegment(V(154.9908, -107.2642, 0), V(59.7408, -107.2642, 0)),  # 7
], False)
sketch11.addConstraint([
    Sketcher.Constraint("Coincident", 0, 2, 1, 1),
    Sketcher.Constraint("Coincident", 1, 2, 2, 1),
    Sketcher.Constraint("Coincident", 2, 2, 3, 1),
    Sketcher.Constraint("Coincident", 3, 2, 0, 1),
    Sketcher.Constraint("Coincident", 4, 2, 5, 1),
    Sketcher.Constraint("Coincident", 5, 2, 6, 1),
    Sketcher.Constraint("Coincident", 6, 2, 7, 1),
    Sketcher.Constraint("Coincident", 7, 2, 4, 1),
    Sketcher.Constraint("Vertical", 0),
    Sketcher.Constraint("Horizontal", 1),
    Sketcher.Constraint("Vertical", 2),
    Sketcher.Constraint("Horizontal", 3),
    Sketcher.Constraint("Vertical", 4),
    Sketcher.Constraint("Horizontal", 5),
    Sketcher.Constraint("Vertical", 6),
    Sketcher.Constraint("Horizontal", 7),
    Sketcher.Constraint("Vertical", 3, 2, 4, 2),
    Sketcher.Constraint("Equal", 3, 4),
    Sketcher.Constraint("DistanceX", 5, 1, 5, 2, Q("3.75 in")),
    Sketcher.Constraint("DistanceX", 1, 1, 1, 2, Q("0.375 in")),
    Sketcher.Constraint("DistanceY", 4, 2, 3, 2, Q("0.55 in")),
    Sketcher.Constraint("DistanceX", -1, 1, 0, 2, Q("2.352 in")),
    Sketcher.Constraint("DistanceY", 2, 2, -1, 1, Q("3.298 in")),
    Sketcher.Constraint("DistanceY", 0, 1, 0, 2, Q("60.6472 mm")),
])
pad3 = doc.addObject("PartDesign::Pad", "Pad002")
body.addObject(pad3)
pad3.Profile = sketch11
pad3.Length = Q("0.0394 in")

# Sketch on XZ plane
sketch12 = doc.addObject("Sketcher::SketchObject", "Sketch011")
body.addObject(sketch12)
sketch12.AttachmentSupport = (doc.XZ_Plane, [""])
sketch12.MapMode = "FlatFace"
sketch12.AttachmentOffset = App.Placement(V(0, 0, -0.0394 * 25.4), App.Rotation())
sketch12.addGeometry([
    Part.LineSegment(V(-61.5112, 50.699324, 0), V(-61.5112, 9.545324, 0)),  # 0
    Part.LineSegment(V(-61.5112, 9.545324, 0), V(-51.8842, 9.545324, 0)),  # 1
    Part.LineSegment(V(-51.8842, 9.545324, 0), V(-51.8842, 2.941324, 0)),  # 2
    Part.LineSegment(V(-51.8842, 2.941324, 0), V(-50.8842, 2.941324, 0)),  # 3
    Part.LineSegment(V(-50.8842, 2.941324, 0), V(-50.8842, 5.1308, 0)),  # 4
    Part.LineSegment(V(-50.8842, 5.1308, 0), V(-48.472691, 5.1308, 0)),  # 5
    Part.ArcOfCircle(Part.Circle(V(-46.3842, 5.822324, 0), V(0, 0, 1), 2.2), math.radians(-161.679694), math.radians(-18.320306)),  # 6
    Part.LineSegment(V(-44.295709, 5.1308, 0), V(-35.5092, 5.1308, 0)),  # 7
    Part.LineSegment(V(-35.5092, 5.1308, 0), V(-35.5092, -2.4892, 0)),  # 8
    Part.LineSegment(V(-35.5092, -2.4892, 0), V(-67.2592, -2.4892, 0)),  # 9
    Part.LineSegment(V(-67.2592, -2.4892, 0), V(-67.2592, 73.66, 0)),  # 10
    Part.LineSegment(V(-67.2592, 73.66, 0), V(-16.963047, 73.66, 0)),  # 11
    Part.LineSegment(V(-16.963047, 73.66, 0), V(-35.5092, 55.113847, 0)),  # 12
    Part.LineSegment(V(-35.5092, 55.113847, 0), V(-44.295709, 55.113847, 0)),  # 13
    Part.ArcOfCircle(Part.Circle(V(-46.3842, 54.422324, 0), V(0, 0, 1), 2.2), math.radians(18.320306), math.radians(161.679694)),  # 14
    Part.LineSegment(V(-48.472691, 55.113847, 0), V(-50.8842, 55.113847, 0)),  # 15
    Part.LineSegment(V(-50.8842, 55.113847, 0), V(-50.8842, 57.303324, 0)),  # 16
    Part.LineSegment(V(-50.8842, 57.303324, 0), V(-51.8842, 57.303324, 0)),  # 17
    Part.LineSegment(V(-51.8842, 57.303324, 0), V(-51.8842, 50.699324, 0)),  # 18
    Part.LineSegment(V(-51.8842, 50.699324, 0), V(-61.5112, 50.699324, 0)),  # 19
    Part.Circle(V(-56.3842, 54.422324, 0), V(0, 0, 1), 2.2),  # 20
    Part.Circle(V(-56.3842, 5.822324, 0), V(0, 0, 1), 2.2),  # 21
], False)
sketch12.addConstraint([
    Sketcher.Constraint("Coincident", 0, 2, 1, 1),
    Sketcher.Constraint("Coincident", 1, 2, 2, 1),
    Sketcher.Constraint("Coincident", 2, 2, 3, 1),
    Sketcher.Constraint("Coincident", 3, 2, 4, 1),
    Sketcher.Constraint("Coincident", 4, 2, 5, 1),
    Sketcher.Constraint("Coincident", 5, 2, 6, 1),
    Sketcher.Constraint("Coincident", 6, 2, 7, 1),
    Sketcher.Constraint("Coincident", 7, 2, 8, 1),
    Sketcher.Constraint("Coincident", 8, 2, 9, 1),
    Sketcher.Constraint("Coincident", 9, 2, 10, 1),
    Sketcher.Constraint("Coincident", 10, 2, 11, 1),
    Sketcher.Constraint("Coincident", 11, 2, 12, 1),
    Sketcher.Constraint("Coincident", 12, 2, 13, 1),
    Sketcher.Constraint("Coincident", 13, 2, 14, 1),
    Sketcher.Constraint("Coincident", 14, 2, 15, 1),
    Sketcher.Constraint("Coincident", 15, 2, 16, 1),
    Sketcher.Constraint("Coincident", 16, 2, 17, 1),
    Sketcher.Constraint("Coincident", 17, 2, 18, 1),
    Sketcher.Constraint("Coincident", 18, 2, 19, 1),
    Sketcher.Constraint("Coincident", 19, 2, 0, 1),
    Sketcher.Constraint("Vertical", 0),
    Sketcher.Constraint("Horizontal", 1),
    Sketcher.Constraint("Vertical", 2),
    Sketcher.Constraint("Horizontal", 3),
    Sketcher.Constraint("Vertical", 4),
    Sketcher.Constraint("Horizontal", 5),
    Sketcher.Constraint("Horizontal", 7),
    Sketcher.Constraint("Vertical", 8),
    Sketcher.Constraint("Horizontal", 9),
    Sketcher.Constraint("Vertical", 10),
    Sketcher.Constraint("Horizontal", 11),
    Sketcher.Constraint("Horizontal", 13),
    Sketcher.Constraint("Horizontal", 15),
    Sketcher.Constraint("Vertical", 16),
    Sketcher.Constraint("Horizontal", 17),
    Sketcher.Constraint("Vertical", 18),
    Sketcher.Constraint("Horizontal", 19),
    Sketcher.Constraint("Equal", 6, 14),
    Sketcher.Constraint("Equal", 14, 20),
    Sketcher.Constraint("Equal", 20, 21),
    Sketcher.Constraint("Horizontal", 14, 3, 20, 3),
    Sketcher.Constraint("Horizontal", 6, 3, 21, 3),
    Sketcher.Constraint("Horizontal", 5, 2, 6, 2),
    Sketcher.Constraint("Horizontal", 13, 2, 14, 2),
    Sketcher.Constraint("Vertical", 6, 3, 14, 3),
    Sketcher.Constraint("Vertical", 20, 3, 21, 3),
    Sketcher.Constraint("Vertical", 8, 2, 12, 2),
    Sketcher.Constraint("Vertical", 6, 2, 13, 2),
    Sketcher.Constraint("Vertical", 4, 2, 15, 2),
    Sketcher.Constraint("Vertical", 2, 2, 17, 2),
    Sketcher.Constraint("Equal", 4, 16),
    Sketcher.Constraint("Equal", 2, 18),
    Sketcher.Constraint("DistanceY", 8, 2, 8, 1, Q("0.3 in")),
    Sketcher.Constraint("Angle", 12, Q("-135 deg")),
    Sketcher.Constraint("DistanceX", 9, 2, 9, 1, Q("1.25 in")),
    Sketcher.Constraint("DistanceY", 2, 2, 2, 1, Q("0.26 in")),
    Sketcher.Constraint("DistanceY", -1, 1, 10, 2, Q("2.9 in")),
    Sketcher.Constraint("Diameter", 20, Q("4.4 mm")),
    Sketcher.Constraint("DistanceY", 10, 1, 10, 2, Q("2.998 in")),
    Sketcher.Constraint("DistanceY", 4, 1, 4, 2, Q("0.0861999 in")),
    Sketcher.Constraint("DistanceX", 7, 2, -1, 1, Q("1.398 in")),
    Sketcher.Constraint("DistanceX", 1, 1, 1, 2, Q("9.627 mm")),
    Sketcher.Constraint("DistanceX", 3, 1, 3, 2, Q("1 mm")),
    Sketcher.Constraint("DistanceY", 0, 2, 0, 1, Q("41.154 mm")),
    Sketcher.Constraint("DistanceX", 5, 1, 5, 2, Q("2.411509 mm")),
    Sketcher.Constraint("DistanceX", 7, 1, 7, 2, Q("8.786509 mm")),
    Sketcher.Constraint("DistanceX", 6, 3, -1, 1, Q("46.3842 mm")),
    Sketcher.Constraint("DistanceX", 20, 3, -1, 1, Q("56.3842 mm")),
])
pad4 = doc.addObject("PartDesign::Pad", "Pad003")
body.addObject(pad4)
pad4.Profile = sketch12
pad4.Length = Q("0.0394 in")

# Sketch on XZ plane
sketch13 = doc.addObject("Sketcher::SketchObject", "Sketch012")
body.addObject(sketch13)
sketch13.AttachmentSupport = (doc.XZ_Plane, [""])
sketch13.MapMode = "FlatFace"
sketch13.AttachmentOffset = App.Placement(V(0, 0, -0.0394 * 25.4), App.Rotation())
sketch13.addGeometry([
    Part.LineSegment(V(-18.233047, 67.31, 0), V(-18.233047, 73.66, 0)),
    Part.LineSegment(V(-18.233047, 73.66, 0), V(-16.963047, 73.66, 0)),
    Part.LineSegment(V(-16.963047, 73.66, 0), V(-16.963047, 67.31, 0)),
    Part.LineSegment(V(-16.963047, 67.31, 0), V(-18.233047, 67.31, 0)),
], False)
sketch13.addConstraint([
    Sketcher.Constraint("Coincident", 0, 2, 1, 1),
    Sketcher.Constraint("Coincident", 1, 2, 2, 1),
    Sketcher.Constraint("Coincident", 2, 2, 3, 1),
    Sketcher.Constraint("Coincident", 3, 2, 0, 1),
    Sketcher.Constraint("Vertical", 0),
    Sketcher.Constraint("Horizontal", 1),
    Sketcher.Constraint("Vertical", 2),
    Sketcher.Constraint("Horizontal", 3),
    Sketcher.Constraint("DistanceX", 1, 1, 1, 2, Q("0.05 in")),
    Sketcher.Constraint("DistanceY", 0, 1, 0, 2, Q("0.25 in")),
    Sketcher.Constraint("DistanceY", -1, 1, 0, 2, Q("2.9 in")),
    Sketcher.Constraint("DistanceX", 0, 2, -1, 1, Q("18.233047 mm")),
])
pocket9 = doc.addObject("PartDesign::Pocket", "Pocket008")
body.addObject(pocket9)
pocket9.Profile = sketch13
pocket9.Type = "ThroughAll"
pocket9.Midplane = True

# Sketch on XZ plane
sketch14 = doc.addObject("Sketcher::SketchObject", "Sketch013")
body.addObject(sketch14)
sketch14.AttachmentSupport = (doc.XZ_Plane, [""])
sketch14.MapMode = "FlatFace"
sketch14.AttachmentOffset = App.Placement(V(0, 0, -0.0394 * 25.4), App.Rotation())
sketch14.addGeometry([
    Part.Circle(V(56.5658, 0.6858, 0), V(0, 0, 1), 1.5875),
    Part.Circle(V(-32.3342, 0.6858, 0), V(0, 0, 1), 1.5875),
    Part.Circle(V(151.8158, -88.2142, 0), V(0, 0, 1), 1.5875),
    Part.Circle(V(62.9158, -88.2142, 0), V(0, 0, 1), 1.5875),
], False)
sketch14.addConstraint([
    Sketcher.Constraint("Equal", 0, 1),
    Sketcher.Constraint("Equal", 1, 2),
    Sketcher.Constraint("Equal", 2, 3),
    Sketcher.Constraint("Horizontal", 0, 3, 1, 3),
    Sketcher.Constraint("Horizontal", 2, 3, 3, 3),
    Sketcher.Constraint("Diameter", 0, Q("0.125 in")),
    Sketcher.Constraint("DistanceX", 1, 3, 0, 3, Q("3.5 in")),
    Sketcher.Constraint("DistanceY", 2, 3, 0, 3, Q("3.5 in")),
    Sketcher.Constraint("DistanceX", 3, 3, 2, 3, Q("3.5 in")),
    Sketcher.Constraint("DistanceX", 0, 3, 2, 3, Q("3.75 in")),
    Sketcher.Constraint("DistanceX", -1, 1, 0, 3, Q("2.227 in")),
    Sketcher.Constraint("DistanceY", -1, 1, 0, 3, Q("0.027 in")),
])
pocket10 = doc.addObject("PartDesign::Pocket", "Pocket009")
body.addObject(pocket10)
pocket10.Profile = sketch14
pocket10.Type = "ThroughAll"
pocket10.Midplane = True

# Sketch on XZ plane
sketch15 = doc.addObject("Sketcher::SketchObject", "Sketch014")
body.addObject(sketch15)
sketch15.AttachmentSupport = (doc.XZ_Plane, [""])
sketch15.MapMode = "FlatFace"
sketch15.AttachmentOffset = App.Placement(V(0, 0, -0.0394 * 25.4), App.Rotation())
sketch15.addGeometry([
    Part.LineSegment(V(58.4708, -83.7692, 0), V(59.7408, -83.7692, 0)),  # 0
    Part.LineSegment(V(59.7408, -83.7692, 0), V(59.7408, -91.3892, 0)),  # 1
    Part.LineSegment(V(59.7408, -91.3892, 0), V(66.0908, -91.3892, 0)),  # 2
    Part.LineSegment(V(66.0908, -91.3892, 0), V(66.0908, -92.6592, 0)),  # 3
    Part.LineSegment(V(66.0908, -92.6592, 0), V(58.4708, -92.6592, 0)),  # 4
    Part.LineSegment(V(58.4708, -92.6592, 0), V(58.4708, -83.7692, 0)),  # 5
    Part.LineSegment(V(59.7408, -3.7592, 0), V(59.7408, 3.8608, 0)),  # 6
    Part.LineSegment(V(59.7408, 3.8608, 0), V(53.3908, 3.8608, 0)),  # 7
    Part.LineSegment(V(53.3908, 3.8608, 0), V(53.3908, 5.1308, 0)),  # 8
    Part.LineSegment(V(53.3908, 5.1308, 0), V(61.0108, 5.1308, 0)),  # 9
    Part.LineSegment(V(61.0108, 5.1308, 0), V(61.0108, -3.7592, 0)),  # 10
    Part.LineSegment(V(61.0108, -3.7592, 0), V(59.7408, -3.7592, 0)),  # 11
    Part.LineSegment(V(-29.1592, 5.1308, 0), V(-29.1592, 3.8608, 0)),  # 12
    Part.LineSegment(V(-29.1592, 3.8608, 0), V(-35.5092, 3.8608, 0)),  # 13
    Part.LineSegment(V(-35.5092, 3.8608, 0), V(-35.5092, -2.4892, 0)),  # 14
    Part.LineSegment(V(-35.5092, -2.4892, 0), V(-36.7792, -2.4892, 0)),  # 15
    Part.LineSegment(V(-36.7792, -2.4892, 0), V(-36.7792, 5.1308, 0)),  # 16
    Part.LineSegment(V(-36.7792, 5.1308, 0), V(-29.1592, 5.1308, 0)),  # 17
    Part.LineSegment(V(148.6408, -92.6592, 0), V(148.6408, -91.3892, 0)),  # 18
    Part.LineSegment(V(148.6408, -91.3892, 0), V(154.9908, -91.3892, 0)),  # 19
    Part.LineSegment(V(154.9908, -91.3892, 0), V(154.9908, -92.6592, 0)),  # 20
    Part.LineSegment(V(154.9908, -92.6592, 0), V(148.6408, -92.6592, 0)),  # 21
], False)
sketch15.addConstraint([
    Sketcher.Constraint("Coincident", 0, 2, 1, 1),
    Sketcher.Constraint("Coincident", 1, 2, 2, 1),
    Sketcher.Constraint("Coincident", 2, 2, 3, 1),
    Sketcher.Constraint("Coincident", 3, 2, 4, 1),
    Sketcher.Constraint("Coincident", 4, 2, 5, 1),
    Sketcher.Constraint("Coincident", 5, 2, 0, 1),
    Sketcher.Constraint("Coincident", 6, 2, 7, 1),
    Sketcher.Constraint("Coincident", 7, 2, 8, 1),
    Sketcher.Constraint("Coincident", 8, 2, 9, 1),
    Sketcher.Constraint("Coincident", 9, 2, 10, 1),
    Sketcher.Constraint("Coincident", 10, 2, 11, 1),
    Sketcher.Constraint("Coincident", 11, 2, 6, 1),
    Sketcher.Constraint("Coincident", 12, 2, 13, 1),
    Sketcher.Constraint("Coincident", 13, 2, 14, 1),
    Sketcher.Constraint("Coincident", 14, 2, 15, 1),
    Sketcher.Constraint("Coincident", 15, 2, 16, 1),
    Sketcher.Constraint("Coincident", 16, 2, 17, 1),
    Sketcher.Constraint("Coincident", 17, 2, 12, 1),
    Sketcher.Constraint("Coincident", 18, 2, 19, 1),
    Sketcher.Constraint("Coincident", 19, 2, 20, 1),
    Sketcher.Constraint("Coincident", 20, 2, 21, 1),
    Sketcher.Constraint("Coincident", 21, 2, 18, 1),
    Sketcher.Constraint("Horizontal", 0),
    Sketcher.Constraint("Vertical", 1),
    Sketcher.Constraint("Horizontal", 2),
    Sketcher.Constraint("Vertical", 3),
    Sketcher.Constraint("Horizontal", 4),
    Sketcher.Constraint("Vertical", 5),
    Sketcher.Constraint("Vertical", 6),
    Sketcher.Constraint("Horizontal", 7),
    Sketcher.Constraint("Vertical", 8),
    Sketcher.Constraint("Horizontal", 9),
    Sketcher.Constraint("Vertical", 10),
    Sketcher.Constraint("Horizontal", 11),
    Sketcher.Constraint("Vertical", 12),
    Sketcher.Constraint("Horizontal", 13),
    Sketcher.Constraint("Vertical", 14),
    Sketcher.Constraint("Horizontal", 15),
    Sketcher.Constraint("Vertical", 16),
    Sketcher.Constraint("Horizontal", 17),
    Sketcher.Constraint("Vertical", 18),
    Sketcher.Constraint("Horizontal", 19),
    Sketcher.Constraint("Vertical", 20),
    Sketcher.Constraint("Horizontal", 21),
    Sketcher.Constraint("Horizontal", 7, 2, 12, 2),
    Sketcher.Constraint("Horizontal", 9, 2, 16, 2),
    Sketcher.Constraint("Horizontal", 2, 2, 18, 2),
    Sketcher.Constraint("Horizontal", 4, 2, 20, 2),
    Sketcher.Constraint("Vertical", 1, 2, 6, 2),
    Sketcher.Constraint("Equal", 2, 7),
    Sketcher.Constraint("Equal", 4, 9),
    Sketcher.Constraint("Equal", 7, 13),
    Sketcher.Constraint("Equal", 11, 15),
    Sketcher.Constraint("Equal", 13, 19),
    Sketcher.Constraint("Equal", 17, 1),
    Sketcher.Constraint("Equal", 15, 3),
    Sketcher.Constraint("Equal", 1, 6),
    Sketcher.Constraint("Equal", 3, 8),
    Sketcher.Constraint("Equal", 21, 14),
    Sketcher.Constraint("DistanceX", 4, 2, 4, 1, Q("0.3 in")),
    Sketcher.Constraint("DistanceX", 0, 1, 0, 2, Q("0.05 in")),
    Sketcher.Constraint("DistanceY", 4, 2, 6, 2, Q("3.8 in")),
    Sketcher.Constraint("DistanceX", 12, 2, 6, 2, Q("3.5 in")),
    Sketcher.Constraint("DistanceX", 1, 2, 18, 2, Q("3.5 in")),
    Sketcher.Constraint("DistanceX", -1, 1, 0, 2, Q("2.352 in")),
    Sketcher.Constraint("DistanceY", 0, 2, -1, 1, Q("3.298 in")),
])
pocket11 = doc.addObject("PartDesign::Pocket", "Pocket010")
body.addObject(pocket11)
pocket11.Profile = sketch15
pocket11.Type = "ThroughAll"
pocket11.Midplane = True

doc.recompute()
